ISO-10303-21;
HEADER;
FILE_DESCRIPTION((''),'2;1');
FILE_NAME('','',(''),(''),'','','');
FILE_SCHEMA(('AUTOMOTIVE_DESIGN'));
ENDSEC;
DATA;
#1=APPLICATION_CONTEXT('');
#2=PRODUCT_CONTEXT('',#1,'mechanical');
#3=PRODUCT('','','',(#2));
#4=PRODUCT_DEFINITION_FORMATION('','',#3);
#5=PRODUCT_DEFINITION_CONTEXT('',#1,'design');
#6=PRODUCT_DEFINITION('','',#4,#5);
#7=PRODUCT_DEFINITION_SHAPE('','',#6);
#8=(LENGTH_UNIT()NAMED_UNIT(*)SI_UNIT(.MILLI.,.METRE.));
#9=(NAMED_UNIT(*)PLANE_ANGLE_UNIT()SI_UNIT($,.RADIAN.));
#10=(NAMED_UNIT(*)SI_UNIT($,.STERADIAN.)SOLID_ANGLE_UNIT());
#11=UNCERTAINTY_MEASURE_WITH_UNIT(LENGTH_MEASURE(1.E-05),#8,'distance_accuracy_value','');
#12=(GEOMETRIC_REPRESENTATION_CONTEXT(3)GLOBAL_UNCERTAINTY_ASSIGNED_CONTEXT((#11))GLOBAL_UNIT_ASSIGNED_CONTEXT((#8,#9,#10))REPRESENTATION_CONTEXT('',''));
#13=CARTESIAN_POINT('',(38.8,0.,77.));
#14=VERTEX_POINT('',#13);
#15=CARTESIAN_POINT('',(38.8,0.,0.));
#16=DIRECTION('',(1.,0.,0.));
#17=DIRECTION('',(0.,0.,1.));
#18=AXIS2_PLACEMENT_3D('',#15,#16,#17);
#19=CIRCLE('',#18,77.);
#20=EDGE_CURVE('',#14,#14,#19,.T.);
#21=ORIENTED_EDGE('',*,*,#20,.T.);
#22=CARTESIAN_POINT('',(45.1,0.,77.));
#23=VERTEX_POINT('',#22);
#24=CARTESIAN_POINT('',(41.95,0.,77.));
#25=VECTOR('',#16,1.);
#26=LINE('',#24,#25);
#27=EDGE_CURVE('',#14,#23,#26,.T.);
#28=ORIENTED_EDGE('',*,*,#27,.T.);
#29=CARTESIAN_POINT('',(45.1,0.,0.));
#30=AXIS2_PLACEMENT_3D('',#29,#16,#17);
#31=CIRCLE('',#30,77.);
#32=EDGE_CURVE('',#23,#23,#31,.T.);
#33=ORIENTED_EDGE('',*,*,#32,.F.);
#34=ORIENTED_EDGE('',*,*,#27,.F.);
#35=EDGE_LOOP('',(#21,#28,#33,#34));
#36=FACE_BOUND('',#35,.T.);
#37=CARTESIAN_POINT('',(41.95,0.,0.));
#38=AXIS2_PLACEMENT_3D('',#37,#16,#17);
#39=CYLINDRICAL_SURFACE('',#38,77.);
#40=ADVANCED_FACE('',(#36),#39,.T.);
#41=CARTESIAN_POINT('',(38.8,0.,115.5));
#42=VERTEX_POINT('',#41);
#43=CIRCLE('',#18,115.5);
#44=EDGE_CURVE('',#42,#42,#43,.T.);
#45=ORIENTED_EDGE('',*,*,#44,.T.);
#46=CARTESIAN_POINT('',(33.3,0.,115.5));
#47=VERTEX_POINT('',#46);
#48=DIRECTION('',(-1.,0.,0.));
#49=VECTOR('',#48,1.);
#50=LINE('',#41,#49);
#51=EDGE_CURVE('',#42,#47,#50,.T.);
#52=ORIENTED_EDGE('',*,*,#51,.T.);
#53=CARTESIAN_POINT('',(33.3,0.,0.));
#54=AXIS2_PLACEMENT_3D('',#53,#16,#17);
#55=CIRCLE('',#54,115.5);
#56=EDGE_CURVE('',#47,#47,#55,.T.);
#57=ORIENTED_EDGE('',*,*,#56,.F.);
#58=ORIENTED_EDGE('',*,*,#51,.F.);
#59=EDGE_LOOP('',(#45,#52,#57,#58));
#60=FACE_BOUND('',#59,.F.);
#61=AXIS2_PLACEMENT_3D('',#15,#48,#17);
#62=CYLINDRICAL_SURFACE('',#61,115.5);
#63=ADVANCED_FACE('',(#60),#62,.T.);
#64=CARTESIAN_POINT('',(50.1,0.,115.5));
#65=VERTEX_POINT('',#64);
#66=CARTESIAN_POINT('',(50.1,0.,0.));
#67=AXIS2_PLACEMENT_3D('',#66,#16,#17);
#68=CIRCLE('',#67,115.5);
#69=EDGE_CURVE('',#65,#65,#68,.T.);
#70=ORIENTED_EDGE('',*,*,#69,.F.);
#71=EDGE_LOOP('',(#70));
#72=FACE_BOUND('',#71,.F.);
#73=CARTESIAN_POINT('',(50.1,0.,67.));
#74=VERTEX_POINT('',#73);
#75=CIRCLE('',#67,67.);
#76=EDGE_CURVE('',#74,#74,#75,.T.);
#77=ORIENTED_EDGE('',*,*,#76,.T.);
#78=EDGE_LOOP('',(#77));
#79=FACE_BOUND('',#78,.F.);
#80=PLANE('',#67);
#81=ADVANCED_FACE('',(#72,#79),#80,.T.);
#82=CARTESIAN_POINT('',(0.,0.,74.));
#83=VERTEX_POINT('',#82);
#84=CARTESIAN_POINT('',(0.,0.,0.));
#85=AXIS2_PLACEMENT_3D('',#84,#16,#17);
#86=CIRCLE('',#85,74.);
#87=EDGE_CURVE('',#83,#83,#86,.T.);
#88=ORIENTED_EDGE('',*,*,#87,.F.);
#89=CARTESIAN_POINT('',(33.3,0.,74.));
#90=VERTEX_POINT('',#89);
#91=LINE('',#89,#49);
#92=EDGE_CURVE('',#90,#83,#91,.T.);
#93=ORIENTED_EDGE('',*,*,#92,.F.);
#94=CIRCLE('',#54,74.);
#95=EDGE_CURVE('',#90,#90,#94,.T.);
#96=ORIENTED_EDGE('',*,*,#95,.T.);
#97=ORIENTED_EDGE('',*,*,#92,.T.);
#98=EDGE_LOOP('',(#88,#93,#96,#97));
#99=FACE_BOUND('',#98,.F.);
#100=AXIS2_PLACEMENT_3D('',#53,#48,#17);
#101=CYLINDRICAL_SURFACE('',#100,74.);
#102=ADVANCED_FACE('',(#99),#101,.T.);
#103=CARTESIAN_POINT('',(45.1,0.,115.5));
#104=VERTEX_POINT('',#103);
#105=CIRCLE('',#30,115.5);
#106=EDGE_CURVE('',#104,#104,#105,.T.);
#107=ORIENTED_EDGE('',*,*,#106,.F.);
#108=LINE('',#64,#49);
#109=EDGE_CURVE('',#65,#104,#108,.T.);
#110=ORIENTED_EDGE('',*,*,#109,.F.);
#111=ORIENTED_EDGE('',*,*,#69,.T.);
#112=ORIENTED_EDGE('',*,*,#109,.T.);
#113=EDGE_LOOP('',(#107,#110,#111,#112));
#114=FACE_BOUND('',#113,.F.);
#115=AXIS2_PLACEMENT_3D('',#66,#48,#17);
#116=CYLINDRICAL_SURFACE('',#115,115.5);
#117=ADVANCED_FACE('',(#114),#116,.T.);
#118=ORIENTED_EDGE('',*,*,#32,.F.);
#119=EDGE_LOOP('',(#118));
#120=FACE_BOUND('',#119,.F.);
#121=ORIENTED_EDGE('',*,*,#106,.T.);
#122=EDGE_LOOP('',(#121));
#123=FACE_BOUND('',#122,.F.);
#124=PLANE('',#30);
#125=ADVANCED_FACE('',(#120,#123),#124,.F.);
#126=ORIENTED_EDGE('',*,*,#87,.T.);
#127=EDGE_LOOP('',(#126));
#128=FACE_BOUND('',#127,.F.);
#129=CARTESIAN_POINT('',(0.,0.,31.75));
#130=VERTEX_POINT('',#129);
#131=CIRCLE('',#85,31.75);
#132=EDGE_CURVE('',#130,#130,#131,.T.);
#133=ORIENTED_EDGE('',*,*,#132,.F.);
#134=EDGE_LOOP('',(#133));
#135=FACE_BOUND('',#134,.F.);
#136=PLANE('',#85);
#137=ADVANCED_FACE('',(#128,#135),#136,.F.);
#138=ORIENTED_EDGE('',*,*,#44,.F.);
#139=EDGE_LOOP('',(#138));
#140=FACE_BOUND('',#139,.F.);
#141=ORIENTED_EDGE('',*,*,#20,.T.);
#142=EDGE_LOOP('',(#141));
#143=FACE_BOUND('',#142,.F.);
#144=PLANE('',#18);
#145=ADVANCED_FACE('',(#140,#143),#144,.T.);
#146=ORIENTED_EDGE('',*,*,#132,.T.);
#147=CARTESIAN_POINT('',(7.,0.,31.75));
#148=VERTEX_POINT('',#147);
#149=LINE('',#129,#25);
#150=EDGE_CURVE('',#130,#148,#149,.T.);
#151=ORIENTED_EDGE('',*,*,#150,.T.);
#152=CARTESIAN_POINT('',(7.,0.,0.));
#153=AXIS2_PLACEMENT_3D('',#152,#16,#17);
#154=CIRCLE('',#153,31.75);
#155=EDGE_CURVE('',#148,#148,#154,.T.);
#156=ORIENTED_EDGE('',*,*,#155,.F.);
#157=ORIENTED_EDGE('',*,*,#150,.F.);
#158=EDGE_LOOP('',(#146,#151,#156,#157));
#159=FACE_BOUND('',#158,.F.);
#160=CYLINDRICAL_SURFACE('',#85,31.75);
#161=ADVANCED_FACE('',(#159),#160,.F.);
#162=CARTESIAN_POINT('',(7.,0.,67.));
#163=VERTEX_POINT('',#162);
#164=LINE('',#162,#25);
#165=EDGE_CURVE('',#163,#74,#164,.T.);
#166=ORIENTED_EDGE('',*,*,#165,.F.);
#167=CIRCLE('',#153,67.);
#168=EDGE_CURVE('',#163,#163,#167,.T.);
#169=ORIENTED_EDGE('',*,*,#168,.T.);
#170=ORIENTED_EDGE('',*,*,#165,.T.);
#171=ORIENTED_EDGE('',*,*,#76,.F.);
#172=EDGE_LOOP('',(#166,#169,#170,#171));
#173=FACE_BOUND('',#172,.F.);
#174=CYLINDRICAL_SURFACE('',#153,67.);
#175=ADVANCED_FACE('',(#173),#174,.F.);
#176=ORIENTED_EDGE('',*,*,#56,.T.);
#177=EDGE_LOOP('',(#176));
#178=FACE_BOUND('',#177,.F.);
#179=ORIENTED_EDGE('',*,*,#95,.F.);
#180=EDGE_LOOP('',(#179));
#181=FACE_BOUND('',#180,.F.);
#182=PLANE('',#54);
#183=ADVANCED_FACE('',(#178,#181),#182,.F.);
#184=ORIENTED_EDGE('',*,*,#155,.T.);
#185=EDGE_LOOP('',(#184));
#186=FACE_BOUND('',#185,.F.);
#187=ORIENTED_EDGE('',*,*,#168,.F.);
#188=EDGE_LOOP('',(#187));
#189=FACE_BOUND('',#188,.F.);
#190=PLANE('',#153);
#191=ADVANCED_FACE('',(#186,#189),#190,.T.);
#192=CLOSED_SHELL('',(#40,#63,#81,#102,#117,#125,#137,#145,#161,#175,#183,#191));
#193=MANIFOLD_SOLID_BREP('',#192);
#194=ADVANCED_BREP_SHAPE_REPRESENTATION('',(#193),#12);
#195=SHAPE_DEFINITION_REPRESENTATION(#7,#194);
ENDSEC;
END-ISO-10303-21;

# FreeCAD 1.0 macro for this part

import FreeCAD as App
import Part
import Sketcher
from FreeCAD import Vector
Q = App.Units.Quantity

doc = App.newDocument("Part")
params = doc.addObject("Spreadsheet::Sheet", "Params")
for row, (alias, value) in enumerate([
    ("sketch1_width", "7 mm"),
    ("sketch1_width2", "5 mm"),
    ("sketch1_width3", "43.1 mm"),
    ("sketch1_width4", "6.3 mm"),
    ("sketch1_width5", "5.5 mm"),
    ("revolution_angle", "360 deg"),
], start=1):
    params.set(f"A{row}", alias)
    params.set(f"B{row}", "=" + value)
    params.setAlias(f"B{row}", alias)

body = doc.addObject("PartDesign::Body", "Body")

# Sketch on XZ plane
sketch1 = body.newObject("Sketcher::SketchObject", "Sketch")
sketch1.AttachmentSupport = (doc.getObject("XZ_Plane"), [""])
sketch1.MapMode = "FlatFace"
sketch1.addGeometry(Part.LineSegment(Vector(0, 74, 0), Vector(0, 32, 0)), False)
sketch1.addGeometry(Part.LineSegment(Vector(0, 32, 0), Vector(7, 32, 0)), False)
sketch1.addGeometry(Part.LineSegment(Vector(7, 32, 0), Vector(7, 67, 0)), False)
sketch1.addGeometry(Part.LineSegment(Vector(7, 67, 0), Vector(50, 67, 0)), False)
sketch1.addGeometry(Part.LineSegment(Vector(50, 67, 0), Vector(50, 116, 0)), False)
sketch1.addGeometry(Part.LineSegment(Vector(50, 116, 0), Vector(45, 116, 0)), False)
sketch1.addGeometry(Part.LineSegment(Vector(45, 116, 0), Vector(45, 77, 0)), False)
sketch1.addGeometry(Part.LineSegment(Vector(45, 77, 0), Vector(39, 77, 0)), False)
sketch1.addGeometry(Part.LineSegment(Vector(39, 77, 0), Vector(39, 116, 0)), False)
sketch1.addGeometry(Part.LineSegment(Vector(39, 116, 0), Vector(33, 116, 0)), False)
sketch1.addGeometry(Part.LineSegment(Vector(33, 116, 0), Vector(33, 74, 0)), False)
sketch1.addGeometry(Part.LineSegment(Vector(33, 74, 0), Vector(0, 74, 0)), False)
sketch1.addConstraint(Sketcher.Constraint("Coincident", 0, 2, 1, 1))
sketch1.addConstraint(Sketcher.Constraint("Coincident", 1, 2, 2, 1))
sketch1.addConstraint(Sketcher.Constraint("Coincident", 2, 2, 3, 1))
sketch1.addConstraint(Sketcher.Constraint("Coincident", 3, 2, 4, 1))
sketch1.addConstraint(Sketcher.Constraint("Coincident", 4, 2, 5, 1))
sketch1.addConstraint(Sketcher.Constraint("Coincident", 5, 2, 6, 1))
sketch1.addConstraint(Sketcher.Constraint("Coincident", 6, 2, 7, 1))
sketch1.addConstraint(Sketcher.Constraint("Coincident", 7, 2, 8, 1))
sketch1.addConstraint(Sketcher.Constraint("Coincident", 8, 2, 9, 1))
sketch1.addConstraint(Sketcher.Constraint("Coincident", 9, 2, 10, 1))
sketch1.addConstraint(Sketcher.Constraint("Coincident", 10, 2, 11, 1))
sketch1.addConstraint(Sketcher.Constraint("Coincident", 11, 2, 0, 1))
sketch1.addConstraint(Sketcher.Constraint("Vertical", 0))
sketch1.addConstraint(Sketcher.Constraint("Horizontal", 1))
sketch1.addConstraint(Sketcher.Constraint("Vertical", 2))
sketch1.addConstraint(Sketcher.Constraint("Horizontal", 3))
sketch1.addConstraint(Sketcher.Constraint("Vertical", 4))
sketch1.addConstraint(Sketcher.Constraint("Horizontal", 5))
sketch1.addConstraint(Sketcher.Constraint("Vertical", 6))
sketch1.addConstraint(Sketcher.Constraint("Horizontal", 7))
sketch1.addConstraint(Sketcher.Constraint("Vertical", 8))
sketch1.addConstraint(Sketcher.Constraint("Horizontal", 9))
sketch1.addConstraint(Sketcher.Constraint("Vertical", 10))
sketch1.addConstraint(Sketcher.Constraint("Horizontal", 11))
sketch1.addConstraint(Sketcher.Constraint("PointOnObject", 0, 2, -2))
sketch1.addConstraint(Sketcher.Constraint("Horizontal", 5, 2, 8, 2))
sketch1.addConstraint(Sketcher.Constraint("DistanceX", 1, 1, 1, 2, Q("7 mm")))
sketch1.addConstraint(Sketcher.Constraint("DistanceX", 5, 2, 5, 1, Q("5 mm")))
sketch1.addConstraint(Sketcher.Constraint("DistanceX", 3, 1, 3, 2, Q("43.1 mm")))
sketch1.addConstraint(Sketcher.Constraint("DistanceX", 7, 2, 7, 1, Q("6.3 mm")))
sketch1.addConstraint(Sketcher.Constraint("DistanceX", 9, 2, 9, 1, Q("5.5 mm")))
sketch1.addConstraint(Sketcher.Constraint("DistanceY", 4, 1, 4, 2, Q("48.5 mm")))
sketch1.addConstraint(Sketcher.Constraint("DistanceY", 6, 2, 6, 1, Q("38.5 mm")))
sketch1.addConstraint(Sketcher.Constraint("DistanceY", 10, 2, 10, 1, Q("41.5 mm")))
sketch1.addConstraint(Sketcher.Constraint("DistanceY", -1, 1, 2, 2, Q("67 mm")))
sketch1.addConstraint(Sketcher.Constraint("DistanceY", 0, 2, 0, 1, Q("42.25 mm")))
sketch1.setExpression("Constraints[26]", "Params.sketch1_width")
sketch1.setExpression("Constraints[27]", "Params.sketch1_width2")
sketch1.setExpression("Constraints[28]", "Params.sketch1_width3")
sketch1.setExpression("Constraints[29]", "Params.sketch1_width4")
sketch1.setExpression("Constraints[30]", "Params.sketch1_width5")
revolution = body.newObject("PartDesign::Revolution", "Revolution")
revolution.Profile = sketch1
revolution.ReferenceAxis = (sketch1, ["H_Axis"])
revolution.setExpression("Angle", "Params.revolution_angle")

doc.recompute()
